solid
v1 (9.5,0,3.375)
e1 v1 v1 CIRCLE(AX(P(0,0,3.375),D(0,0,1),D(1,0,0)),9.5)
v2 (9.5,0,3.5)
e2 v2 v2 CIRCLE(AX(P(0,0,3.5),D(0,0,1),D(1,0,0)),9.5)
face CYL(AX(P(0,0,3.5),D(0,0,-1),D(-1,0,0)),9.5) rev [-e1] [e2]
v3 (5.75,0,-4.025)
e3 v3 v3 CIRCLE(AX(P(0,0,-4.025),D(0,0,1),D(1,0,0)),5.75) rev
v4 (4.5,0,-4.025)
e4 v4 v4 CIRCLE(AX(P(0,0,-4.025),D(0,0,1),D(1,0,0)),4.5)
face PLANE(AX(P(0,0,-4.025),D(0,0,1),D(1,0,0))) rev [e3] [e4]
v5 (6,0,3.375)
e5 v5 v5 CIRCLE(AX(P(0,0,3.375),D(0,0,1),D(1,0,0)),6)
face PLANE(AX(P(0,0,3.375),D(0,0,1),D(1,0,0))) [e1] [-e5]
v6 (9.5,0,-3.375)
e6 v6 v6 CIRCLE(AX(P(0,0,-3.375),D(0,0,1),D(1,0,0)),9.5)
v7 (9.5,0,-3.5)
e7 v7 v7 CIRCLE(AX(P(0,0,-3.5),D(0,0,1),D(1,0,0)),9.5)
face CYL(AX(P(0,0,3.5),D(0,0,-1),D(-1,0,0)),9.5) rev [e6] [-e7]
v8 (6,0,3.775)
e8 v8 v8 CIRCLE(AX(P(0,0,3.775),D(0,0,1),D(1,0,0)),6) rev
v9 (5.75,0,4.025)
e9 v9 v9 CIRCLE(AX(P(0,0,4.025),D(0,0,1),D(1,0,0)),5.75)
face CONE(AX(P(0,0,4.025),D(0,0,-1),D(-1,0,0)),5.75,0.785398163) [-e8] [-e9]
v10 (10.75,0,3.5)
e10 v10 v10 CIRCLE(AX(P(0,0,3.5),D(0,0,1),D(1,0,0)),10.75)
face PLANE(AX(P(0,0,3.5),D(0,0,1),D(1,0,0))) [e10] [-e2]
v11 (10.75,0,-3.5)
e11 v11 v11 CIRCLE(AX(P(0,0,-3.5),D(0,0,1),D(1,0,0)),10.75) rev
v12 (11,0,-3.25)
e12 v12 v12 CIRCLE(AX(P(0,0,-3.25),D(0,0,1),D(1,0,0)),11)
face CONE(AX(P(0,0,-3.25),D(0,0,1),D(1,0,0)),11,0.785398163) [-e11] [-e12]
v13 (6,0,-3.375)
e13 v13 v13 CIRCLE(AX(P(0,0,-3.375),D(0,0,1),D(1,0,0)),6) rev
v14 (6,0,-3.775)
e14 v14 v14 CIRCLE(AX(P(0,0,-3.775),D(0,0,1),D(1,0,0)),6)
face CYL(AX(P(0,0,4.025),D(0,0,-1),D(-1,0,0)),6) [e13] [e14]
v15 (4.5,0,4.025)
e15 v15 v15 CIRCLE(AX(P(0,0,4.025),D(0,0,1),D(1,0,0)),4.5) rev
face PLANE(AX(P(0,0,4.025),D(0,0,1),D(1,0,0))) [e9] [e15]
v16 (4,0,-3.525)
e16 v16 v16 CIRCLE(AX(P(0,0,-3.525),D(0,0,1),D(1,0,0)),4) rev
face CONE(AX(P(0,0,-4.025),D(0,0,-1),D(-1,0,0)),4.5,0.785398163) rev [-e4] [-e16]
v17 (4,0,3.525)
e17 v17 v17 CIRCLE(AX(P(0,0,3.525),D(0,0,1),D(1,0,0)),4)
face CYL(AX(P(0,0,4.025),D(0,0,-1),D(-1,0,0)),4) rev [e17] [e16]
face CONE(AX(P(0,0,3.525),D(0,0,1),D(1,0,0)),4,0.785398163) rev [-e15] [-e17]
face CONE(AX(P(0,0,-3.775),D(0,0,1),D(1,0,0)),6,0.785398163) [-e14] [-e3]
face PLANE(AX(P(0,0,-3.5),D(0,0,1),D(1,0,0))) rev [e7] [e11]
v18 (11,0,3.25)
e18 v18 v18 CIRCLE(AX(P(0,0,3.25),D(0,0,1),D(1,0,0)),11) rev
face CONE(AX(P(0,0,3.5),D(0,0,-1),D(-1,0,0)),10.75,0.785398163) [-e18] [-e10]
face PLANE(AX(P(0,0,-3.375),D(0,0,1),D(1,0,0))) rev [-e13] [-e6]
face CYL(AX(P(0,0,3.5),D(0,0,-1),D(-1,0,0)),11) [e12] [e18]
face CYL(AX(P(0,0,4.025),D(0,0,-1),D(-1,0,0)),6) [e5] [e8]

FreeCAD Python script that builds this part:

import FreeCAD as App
import Part
import Sketcher


def edges_at(feature, points):
    """Names of the edges that pass closest to the given points."""
    edges = feature.Shape.Edges
    near = lambda p: min(range(len(edges)), key=lambda i: edges[i].distToShape(Part.Vertex(*p))[0])
    return sorted({f"Edge{near(p) + 1}" for p in points})

doc = App.newDocument("Part")
body = doc.addObject("PartDesign::Body", "Body")

sketch1 = doc.addObject("Sketcher::SketchObject", "Sketch")
body.addObject(sketch1)
sketch1.AttachmentSupport = (doc.XY_Plane, [""])
sketch1.MapMode = "FlatFace"
sketch1.addGeometry([
    Part.Circle(App.Vector(0, 0, 0), App.Vector(0, 0, 1), 11),
    Part.Circle(App.Vector(0, 0, 0), App.Vector(0, 0, 1), 9.5),
], False)
sketch1.addConstraint([
    Sketcher.Constraint("Coincident", 0, 3, -1, 1),
    Sketcher.Constraint("Coincident", 1, 3, -1, 1),
    Sketcher.Constraint("Diameter", 0, 22.0),
    Sketcher.Constraint("Diameter", 1, 19.0),
])
pad1 = doc.addObject("PartDesign::Pad", "Pad")
body.addObject(pad1)
pad1.Profile = sketch1
pad1.Length = 7
pad1.Midplane = True
body2 = doc.addObject("PartDesign::Body", "Body001")

sketch2 = doc.addObject("Sketcher::SketchObject", "Sketch001")
body2.addObject(sketch2)
sketch2.AttachmentSupport = (doc.getObject("XY_Plane001"), [""])
sketch2.MapMode = "FlatFace"
sketch2.addGeometry([
    Part.Circle(App.Vector(0, 0, 0), App.Vector(0, 0, 1), 6),
    Part.Circle(App.Vector(0, 0, 0), App.Vector(0, 0, 1), 4),
], False)
sketch2.addConstraint([
    Sketcher.Constraint("Coincident", 0, 3, -1, 1),
    Sketcher.Constraint("Coincident", 1, 3, -1, 1),
    Sketcher.Constraint("Diameter", 0, 12.0),
    Sketcher.Constraint("Diameter", 1, 8.0),
])
pad2 = doc.addObject("PartDesign::Pad", "Pad001")
body2.addObject(pad2)
pad2.Profile = sketch2
pad2.Length = 8.05
pad2.Midplane = True
body.AllowCompound = True
doc.recompute()

boolean = doc.addObject("PartDesign::Boolean", "Boolean")
body.addObject(boolean)
boolean.Type = "Fuse"
boolean.addObjects([body2])

sketch3 = doc.addObject("Sketcher::SketchObject", "Sketch002")
body.addObject(sketch3)
sketch3.AttachmentSupport = (doc.XY_Plane, [""])
sketch3.MapMode = "FlatFace"
sketch3.addGeometry([
    Part.Circle(App.Vector(0, 0, 0), App.Vector(0, 0, 1), 9.5),
    Part.Circle(App.Vector(0, 0, 0), App.Vector(0, 0, 1), 6),
], False)
sketch3.addConstraint([
    Sketcher.Constraint("Coincident", 0, 3, -1, 1),
    Sketcher.Constraint("Coincident", 1, 3, -1, 1),
    Sketcher.Constraint("Diameter", 0, 19.0),
    Sketcher.Constraint("Diameter", 1, 12.0),
])
pad3 = doc.addObject("PartDesign::Pad", "Pad002")
body.addObject(pad3)
pad3.Profile = sketch3
pad3.Length = 6.75
pad3.Midplane = True
doc.recompute()

chamfer = doc.addObject("PartDesign::Chamfer", "Chamfer")
body.addObject(chamfer)
chamfer.Base = (pad3, edges_at(pad3, [(-4, 0, 4.025), (-4, 0, -4.025)]))
chamfer.Size = 0.5
doc.recompute()

chamfer2 = doc.addObject("PartDesign::Chamfer", "Chamfer001")
body.addObject(chamfer2)
chamfer2.Base = (chamfer, edges_at(chamfer, [
    (-11, 0, 3.5),
    (-6, 0, -4.025),
    (-6, 0, 4.025),
    (-11, 0, -3.5),
]))
chamfer2.Size = 0.25

doc.recompute()
